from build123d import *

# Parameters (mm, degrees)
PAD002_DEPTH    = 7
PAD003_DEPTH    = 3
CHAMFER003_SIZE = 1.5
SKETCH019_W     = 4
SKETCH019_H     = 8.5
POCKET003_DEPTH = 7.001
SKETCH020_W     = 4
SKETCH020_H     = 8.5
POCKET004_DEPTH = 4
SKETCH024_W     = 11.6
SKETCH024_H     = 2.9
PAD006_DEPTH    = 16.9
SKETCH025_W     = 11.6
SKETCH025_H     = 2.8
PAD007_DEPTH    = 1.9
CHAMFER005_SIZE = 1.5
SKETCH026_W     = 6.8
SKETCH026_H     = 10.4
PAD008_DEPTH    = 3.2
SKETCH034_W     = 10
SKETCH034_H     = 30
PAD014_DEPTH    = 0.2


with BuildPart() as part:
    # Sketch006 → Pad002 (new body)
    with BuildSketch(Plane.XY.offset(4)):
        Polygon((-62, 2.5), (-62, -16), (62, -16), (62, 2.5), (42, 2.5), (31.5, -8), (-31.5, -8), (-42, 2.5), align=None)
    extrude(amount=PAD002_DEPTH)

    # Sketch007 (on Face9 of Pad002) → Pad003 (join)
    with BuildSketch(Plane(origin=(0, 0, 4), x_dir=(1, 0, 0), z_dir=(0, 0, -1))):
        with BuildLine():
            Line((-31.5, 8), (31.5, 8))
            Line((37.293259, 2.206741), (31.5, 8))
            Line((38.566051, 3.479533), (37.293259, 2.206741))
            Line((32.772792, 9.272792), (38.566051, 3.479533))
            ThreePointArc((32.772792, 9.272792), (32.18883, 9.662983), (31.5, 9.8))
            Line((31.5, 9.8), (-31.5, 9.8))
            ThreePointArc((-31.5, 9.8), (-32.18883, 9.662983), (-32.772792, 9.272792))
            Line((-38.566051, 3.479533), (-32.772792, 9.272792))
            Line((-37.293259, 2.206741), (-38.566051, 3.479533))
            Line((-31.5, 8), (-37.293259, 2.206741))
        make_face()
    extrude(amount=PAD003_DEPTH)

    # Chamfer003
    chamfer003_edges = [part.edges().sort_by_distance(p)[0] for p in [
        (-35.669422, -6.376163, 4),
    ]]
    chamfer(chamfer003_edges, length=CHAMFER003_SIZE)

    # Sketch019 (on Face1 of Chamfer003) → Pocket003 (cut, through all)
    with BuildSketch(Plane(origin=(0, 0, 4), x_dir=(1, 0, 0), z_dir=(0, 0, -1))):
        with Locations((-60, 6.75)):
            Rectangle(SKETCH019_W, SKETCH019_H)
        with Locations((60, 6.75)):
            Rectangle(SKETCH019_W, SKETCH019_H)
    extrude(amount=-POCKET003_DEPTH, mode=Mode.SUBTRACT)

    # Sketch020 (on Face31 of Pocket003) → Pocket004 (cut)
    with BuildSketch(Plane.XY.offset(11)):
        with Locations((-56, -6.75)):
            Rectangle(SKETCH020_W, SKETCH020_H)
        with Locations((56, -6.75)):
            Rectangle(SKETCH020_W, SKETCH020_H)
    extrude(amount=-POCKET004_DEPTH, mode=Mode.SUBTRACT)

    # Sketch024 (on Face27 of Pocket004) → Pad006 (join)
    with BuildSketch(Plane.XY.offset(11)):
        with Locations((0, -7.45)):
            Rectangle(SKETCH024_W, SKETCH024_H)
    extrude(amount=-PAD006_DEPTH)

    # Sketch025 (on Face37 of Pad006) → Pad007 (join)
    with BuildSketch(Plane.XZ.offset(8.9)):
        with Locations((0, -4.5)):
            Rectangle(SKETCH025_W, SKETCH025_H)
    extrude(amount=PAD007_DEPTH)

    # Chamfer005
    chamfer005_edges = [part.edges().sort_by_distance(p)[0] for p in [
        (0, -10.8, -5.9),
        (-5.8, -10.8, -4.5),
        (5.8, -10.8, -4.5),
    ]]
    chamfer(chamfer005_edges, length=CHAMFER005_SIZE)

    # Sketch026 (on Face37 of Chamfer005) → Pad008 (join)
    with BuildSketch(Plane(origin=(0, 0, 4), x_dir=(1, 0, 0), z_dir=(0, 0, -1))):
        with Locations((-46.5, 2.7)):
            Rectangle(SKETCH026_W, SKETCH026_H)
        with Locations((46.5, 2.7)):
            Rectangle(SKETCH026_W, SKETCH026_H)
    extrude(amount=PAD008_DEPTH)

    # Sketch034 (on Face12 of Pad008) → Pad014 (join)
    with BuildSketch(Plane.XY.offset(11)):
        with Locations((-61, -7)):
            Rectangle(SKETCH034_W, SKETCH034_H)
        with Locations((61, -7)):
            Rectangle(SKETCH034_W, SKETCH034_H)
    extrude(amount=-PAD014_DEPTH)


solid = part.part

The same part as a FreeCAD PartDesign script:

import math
import FreeCAD as App
import Part
import Sketcher


def edges_at(feature, points):
    """Names of the edges that pass closest to the given points."""
    edges = feature.Shape.Edges
    near = lambda p: min(range(len(edges)), key=lambda i: edges[i].distToShape(Part.Vertex(*p))[0])
    return sorted({f"Edge{near(p) + 1}" for p in points})

doc = App.newDocument("Part")
body = doc.addObject("PartDesign::Body", "Body")

sketch1 = body.newObject("Sketcher::SketchObject", "Sketch")
sketch1.AttachmentSupport = (doc.getObject("XY_Plane"), [""])
sketch1.MapMode = "FlatFace"
sketch1.AttachmentOffset = App.Placement(App.Vector(0, 0, 4), App.Rotation())
sketch1.addGeometry([
    Part.LineSegment(App.Vector(-62, 2.5, 0), App.Vector(-62, -16, 0)),
    Part.LineSegment(App.Vector(-62, -16, 0), App.Vector(62, -16, 0)),
    Part.LineSegment(App.Vector(62, -16, 0), App.Vector(62, 2.5, 0)),
    Part.LineSegment(App.Vector(62, 2.5, 0), App.Vector(42, 2.5, 0)),
    Part.LineSegment(App.Vector(42, 2.5, 0), App.Vector(31.5, -8, 0)),
    Part.LineSegment(App.Vector(31.5, -8, 0), App.Vector(-31.5, -8, 0)),
    Part.LineSegment(App.Vector(-31.5, -8, 0), App.Vector(-42, 2.5, 0)),
    Part.LineSegment(App.Vector(-42, 2.5, 0), App.Vector(-62, 2.5, 0)),
], False)
sketch1.addConstraint([
    Sketcher.Constraint("Coincident", 0, 2, 1, 1),
    Sketcher.Constraint("Coincident", 1, 2, 2, 1),
    Sketcher.Constraint("Coincident", 2, 2, 3, 1),
    Sketcher.Constraint("Coincident", 3, 2, 4, 1),
    Sketcher.Constraint("Coincident", 4, 2, 5, 1),
    Sketcher.Constraint("Coincident", 5, 2, 6, 1),
    Sketcher.Constraint("Coincident", 6, 2, 7, 1),
    Sketcher.Constraint("Coincident", 7, 2, 0, 1),
    Sketcher.Constraint("Vertical", 0),
    Sketcher.Constraint("Horizontal", 1),
    Sketcher.Constraint("Vertical", 2),
    Sketcher.Constraint("Horizontal", 3),
    Sketcher.Constraint("Horizontal", 5),
    Sketcher.Constraint("Horizontal", 7),
    Sketcher.Constraint("Symmetric", 3, 2, 6, 2, -2),
    Sketcher.Constraint("Perpendicular", 4, 6),
    Sketcher.Constraint("Equal", 3, 7),
    Sketcher.Constraint("Equal", 4, 6),
    Sketcher.Constraint("DistanceX", 1, 1, 1, 2, 124.0),
    Sketcher.Constraint("DistanceX", 3, 2, 3, 1, 20.0),
    Sketcher.Constraint("DistanceX", 5, 2, 5, 1, 63.0),
    Sketcher.Constraint("DistanceY", 0, 2, 0, 1, 18.5),
    Sketcher.Constraint("DistanceY", 0, 2, -1, 1, 16.0),
])
pad1 = body.newObject("PartDesign::Pad", "Pad")
pad1.Profile = sketch1
pad1.Length = 7

sketch2 = body.newObject("Sketcher::SketchObject", "Sketch001")
sketch2.AttachmentSupport = (doc.getObject("XY_Plane"), [""])
sketch2.MapMode = "FlatFace"
sketch2.AttachmentOffset = App.Placement(App.Vector(0, 0, 4), App.Rotation())
sketch2.addGeometry([
    Part.LineSegment(App.Vector(-31.5, -8, 0), App.Vector(31.5, -8, 0)),
    Part.LineSegment(App.Vector(31.5, -8, 0), App.Vector(37.293259, -2.206741, 0)),
    Part.LineSegment(App.Vector(37.293259, -2.206741, 0), App.Vector(38.566051, -3.479533, 0)),
    Part.LineSegment(App.Vector(38.566051, -3.479533, 0), App.Vector(32.772792, -9.272792, 0)),
    Part.ArcOfCircle(Part.Circle(App.Vector(31.499999, -7.999999, 0), App.Vector(0, 0, 1), 1.800001), math.radians(-89.999978), math.radians(-45)),
    Part.LineSegment(App.Vector(31.5, -9.8, 0), App.Vector(-31.5, -9.8, 0)),
    Part.ArcOfCircle(Part.Circle(App.Vector(-31.499999, -7.999999, 0), App.Vector(0, 0, 1), 1.800001), math.radians(-135), math.radians(-90.000022)),
    Part.LineSegment(App.Vector(-32.772792, -9.272792, 0), App.Vector(-38.566051, -3.479533, 0)),
    Part.LineSegment(App.Vector(-38.566051, -3.479533, 0), App.Vector(-37.293259, -2.206741, 0)),
    Part.LineSegment(App.Vector(-37.293259, -2.206741, 0), App.Vector(-31.5, -8, 0)),
], False)
sketch2.addConstraint([
    Sketcher.Constraint("Coincident", 0, 2, 1, 1),
    Sketcher.Constraint("Coincident", 1, 2, 2, 1),
    Sketcher.Constraint("Coincident", 2, 2, 3, 1),
    Sketcher.Constraint("Tangent", 3, 2, 4, 2),
    Sketcher.Constraint("Tangent", 4, 1, 5, 1),
    Sketcher.Constraint("Tangent", 5, 2, 6, 2),
    Sketcher.Constraint("Tangent", 6, 1, 7, 1),
    Sketcher.Constraint("Coincident", 7, 2, 8, 1),
    Sketcher.Constraint("Coincident", 8, 2, 9, 1),
    Sketcher.Constraint("Coincident", 9, 2, 0, 1),
    Sketcher.Constraint("Horizontal", 0),
    Sketcher.Constraint("Horizontal", 5),
    Sketcher.Constraint("Coincident", 0, 2, 4, 3),
    Sketcher.Constraint("Coincident", 9, 2, 6, 3),
    Sketcher.Constraint("Symmetric", 3, 2, 6, 1, -2),
    Sketcher.Constraint("Symmetric", 1, 2, 8, 2, -2),
    Sketcher.Constraint("Perpendicular", 1, 2),
    Sketcher.Constraint("Perpendicular", 2, 3),
    Sketcher.Constraint("Perpendicular", 3, 7),
    Sketcher.Constraint("Perpendicular", 7, 8),
    Sketcher.Constraint("Radius", 4, 1.800001),
    Sketcher.Constraint("DistanceX", 0, 1, 0, 2, 63.0),
    Sketcher.Constraint("DistanceY", 4, 3, -1, 1, 7.999999),
    Sketcher.Constraint("DistanceX", -1, 1, 1, 2, 37.293259),
])
pad2 = body.newObject("PartDesign::Pad", "Pad001")
pad2.Profile = sketch2
pad2.Length = 3
pad2.Reversed = True
doc.recompute()

chamfer = body.newObject("PartDesign::Chamfer", "Chamfer")
chamfer.Base = (pad2, edges_at(pad2, [(-35.669, -6.376, 4)]))
chamfer.Size = 1.5

sketch3 = body.newObject("Sketcher::SketchObject", "Sketch002")
sketch3.AttachmentSupport = (doc.getObject("XY_Plane"), [""])
sketch3.MapMode = "FlatFace"
sketch3.AttachmentOffset = App.Placement(App.Vector(0, 0, 4), App.Rotation())
sketch3.addGeometry([
    Part.LineSegment(App.Vector(-62, -11, 0), App.Vector(-62, -2.5, 0)),
    Part.LineSegment(App.Vector(-62, -2.5, 0), App.Vector(-58, -2.5, 0)),
    Part.LineSegment(App.Vector(-58, -2.5, 0), App.Vector(-58, -11, 0)),
    Part.LineSegment(App.Vector(-58, -11, 0), App.Vector(-62, -11, 0)),
    Part.LineSegment(App.Vector(58, -11, 0), App.Vector(58, -2.5, 0)),
    Part.LineSegment(App.Vector(58, -2.5, 0), App.Vector(62, -2.5, 0)),
    Part.LineSegment(App.Vector(62, -2.5, 0), App.Vector(62, -11, 0)),
    Part.LineSegment(App.Vector(62, -11, 0), App.Vector(58, -11, 0)),
], False)
sketch3.addConstraint([
    Sketcher.Constraint("Coincident", 0, 2, 1, 1),
    Sketcher.Constraint("Coincident", 1, 2, 2, 1),
    Sketcher.Constraint("Coincident", 2, 2, 3, 1),
    Sketcher.Constraint("Coincident", 3, 2, 0, 1),
    Sketcher.Constraint("Coincident", 4, 2, 5, 1),
    Sketcher.Constraint("Coincident", 5, 2, 6, 1),
    Sketcher.Constraint("Coincident", 6, 2, 7, 1),
    Sketcher.Constraint("Coincident", 7, 2, 4, 1),
    Sketcher.Constraint("Vertical", 0),
    Sketcher.Constraint("Horizontal", 1),
    Sketcher.Constraint("Vertical", 2),
    Sketcher.Constraint("Horizontal", 3),
    Sketcher.Constraint("Vertical", 4),
    Sketcher.Constraint("Horizontal", 5),
    Sketcher.Constraint("Vertical", 6),
    Sketcher.Constraint("Horizontal", 7),
    Sketcher.Constraint("Symmetric", 1, 2, 4, 2, -2),
    Sketcher.Constraint("Symmetric", 3, 2, 6, 2, -2),
    Sketcher.Constraint("DistanceX", 1, 1, 1, 2, 4.0),
    Sketcher.Constraint("DistanceY", 0, 1, 0, 2, 8.5),
    Sketcher.Constraint("DistanceX", 0, 2, -1, 1, 62.0),
    Sketcher.Constraint("DistanceY", 2, 2, -1, 1, 11.0),
])
pocket1 = body.newObject("PartDesign::Pocket", "Pocket")
pocket1.Profile = sketch3
pocket1.Type = "ThroughAll"
pocket1.Reversed = True

sketch4 = body.newObject("Sketcher::SketchObject", "Sketch003")
sketch4.AttachmentSupport = (doc.getObject("XY_Plane"), [""])
sketch4.MapMode = "FlatFace"
sketch4.AttachmentOffset = App.Placement(App.Vector(0, 0, 11), App.Rotation())
sketch4.addGeometry([
    Part.LineSegment(App.Vector(-58, -2.5, 0), App.Vector(-58, -11, 0)),
    Part.LineSegment(App.Vector(-58, -11, 0), App.Vector(-54, -11, 0)),
    Part.LineSegment(App.Vector(-54, -11, 0), App.Vector(-54, -2.5, 0)),
    Part.LineSegment(App.Vector(-54, -2.5, 0), App.Vector(-58, -2.5, 0)),
    Part.LineSegment(App.Vector(54, -2.5, 0), App.Vector(54, -11, 0)),
    Part.LineSegment(App.Vector(54, -11, 0), App.Vector(58, -11, 0)),
    Part.LineSegment(App.Vector(58, -11, 0), App.Vector(58, -2.5, 0)),
    Part.LineSegment(App.Vector(58, -2.5, 0), App.Vector(54, -2.5, 0)),
], False)
sketch4.addConstraint([
    Sketcher.Constraint("Coincident", 0, 2, 1, 1),
    Sketcher.Constraint("Coincident", 1, 2, 2, 1),
    Sketcher.Constraint("Coincident", 2, 2, 3, 1),
    Sketcher.Constraint("Coincident", 3, 2, 0, 1),
    Sketcher.Constraint("Coincident", 4, 2, 5, 1),
    Sketcher.Constraint("Coincident", 5, 2, 6, 1),
    Sketcher.Constraint("Coincident", 6, 2, 7, 1),
    Sketcher.Constraint("Coincident", 7, 2, 4, 1),
    Sketcher.Constraint("Vertical", 0),
    Sketcher.Constraint("Horizontal", 1),
    Sketcher.Constraint("Vertical", 2),
    Sketcher.Constraint("Horizontal", 3),
    Sketcher.Constraint("Vertical", 4),
    Sketcher.Constraint("Horizontal", 5),
    Sketcher.Constraint("Vertical", 6),
    Sketcher.Constraint("Horizontal", 7),
    Sketcher.Constraint("Symmetric", 1, 2, 4, 2, -2),
    Sketcher.Constraint("Symmetric", 3, 2, 6, 2, -2),
    Sketcher.Constraint("DistanceX", 1, 1, 1, 2, 4.0),
    Sketcher.Constraint("DistanceY", 0, 2, 0, 1, 8.5),
    Sketcher.Constraint("DistanceX", 0, 2, -1, 1, 58.0),
    Sketcher.Constraint("DistanceY", 0, 2, -1, 1, 11.0),
])
pocket2 = body.newObject("PartDesign::Pocket", "Pocket001")
pocket2.Profile = sketch4
pocket2.Length = 4

sketch5 = body.newObject("Sketcher::SketchObject", "Sketch004")
sketch5.AttachmentSupport = (doc.getObject("XY_Plane"), [""])
sketch5.MapMode = "FlatFace"
sketch5.AttachmentOffset = App.Placement(App.Vector(0, 0, 11), App.Rotation())
sketch5.addGeometry([
    Part.LineSegment(App.Vector(-5.8, -6, 0), App.Vector(-5.8, -8.9, 0)),
    Part.LineSegment(App.Vector(-5.8, -8.9, 0), App.Vector(5.8, -8.9, 0)),
    Part.LineSegment(App.Vector(5.8, -8.9, 0), App.Vector(5.8, -6, 0)),
    Part.LineSegment(App.Vector(5.8, -6, 0), App.Vector(-5.8, -6, 0)),
], False)
sketch5.addConstraint([
    Sketcher.Constraint("Coincident", 0, 2, 1, 1),
    Sketcher.Constraint("Coincident", 1, 2, 2, 1),
    Sketcher.Constraint("Coincident", 2, 2, 3, 1),
    Sketcher.Constraint("Coincident", 3, 2, 0, 1),
    Sketcher.Constraint("Vertical", 0),
    Sketcher.Constraint("Horizontal", 1),
    Sketcher.Constraint("Vertical", 2),
    Sketcher.Constraint("Horizontal", 3),
    Sketcher.Constraint("DistanceX", 1, 1, 1, 2, 11.6),
    Sketcher.Constraint("DistanceY", 0, 2, 0, 1, 2.9),
    Sketcher.Constraint("DistanceY", 2, 2, -1, 1, 6.0),
    Sketcher.Constraint("DistanceX", 0, 2, -1, 1, 5.8),
])
pad3 = body.newObject("PartDesign::Pad", "Pad002")
pad3.Profile = sketch5
pad3.Length = 16.9
pad3.Reversed = True

sketch6 = body.newObject("Sketcher::SketchObject", "Sketch005")
sketch6.AttachmentSupport = (doc.getObject("XZ_Plane"), [""])
sketch6.MapMode = "FlatFace"
sketch6.AttachmentOffset = App.Placement(App.Vector(0, 0, 8.9), App.Rotation())
sketch6.addGeometry([
    Part.LineSegment(App.Vector(-5.8, -3.1, 0), App.Vector(-5.8, -5.9, 0)),
    Part.LineSegment(App.Vector(-5.8, -5.9, 0), App.Vector(5.8, -5.9, 0)),
    Part.LineSegment(App.Vector(5.8, -5.9, 0), App.Vector(5.8, -3.1, 0)),
    Part.LineSegment(App.Vector(5.8, -3.1, 0), App.Vector(-5.8, -3.1, 0)),
], False)
sketch6.addConstraint([
    Sketcher.Constraint("Coincident", 0, 2, 1, 1),
    Sketcher.Constraint("Coincident", 1, 2, 2, 1),
    Sketcher.Constraint("Coincident", 2, 2, 3, 1),
    Sketcher.Constraint("Coincident", 3, 2, 0, 1),
    Sketcher.Constraint("Vertical", 0),
    Sketcher.Constraint("Horizontal", 1),
    Sketcher.Constraint("Vertical", 2),
    Sketcher.Constraint("Horizontal", 3),
    Sketcher.Constraint("DistanceX", 1, 1, 1, 2, 11.6),
    Sketcher.Constraint("DistanceY", 0, 2, 0, 1, 2.8),
    Sketcher.Constraint("DistanceX", 0, 2, -1, 1, 5.8),
    Sketcher.Constraint("DistanceY", 0, 2, -1, 1, 5.9),
])
pad4 = body.newObject("PartDesign::Pad", "Pad003")
pad4.Profile = sketch6
pad4.Length = 1.9
doc.recompute()

chamfer2 = body.newObject("PartDesign::Chamfer", "Chamfer001")
chamfer2.Base = (pad4, edges_at(pad4, [(0, -10.8, -5.9), (-5.8, -10.8, -4.5), (5.8, -10.8, -4.5)]))
chamfer2.Size = 1.5

sketch7 = body.newObject("Sketcher::SketchObject", "Sketch006")
sketch7.AttachmentSupport = (doc.getObject("XY_Plane"), [""])
sketch7.MapMode = "FlatFace"
sketch7.AttachmentOffset = App.Placement(App.Vector(0, 0, 4), App.Rotation())
sketch7.addGeometry([
    Part.LineSegment(App.Vector(-49.9, -7.9, 0), App.Vector(-49.9, 2.5, 0)),
    Part.LineSegment(App.Vector(-49.9, 2.5, 0), App.Vector(-43.1, 2.5, 0)),
    Part.LineSegment(App.Vector(-43.1, 2.5, 0), App.Vector(-43.1, -7.9, 0)),
    Part.LineSegment(App.Vector(-43.1, -7.9, 0), App.Vector(-49.9, -7.9, 0)),
    Part.LineSegment(App.Vector(43.1, -7.9, 0), App.Vector(43.1, 2.5, 0)),
    Part.LineSegment(App.Vector(43.1, 2.5, 0), App.Vector(49.9, 2.5, 0)),
    Part.LineSegment(App.Vector(49.9, 2.5, 0), App.Vector(49.9, -7.9, 0)),
    Part.LineSegment(App.Vector(49.9, -7.9, 0), App.Vector(43.1, -7.9, 0)),
], False)
sketch7.addConstraint([
    Sketcher.Constraint("Coincident", 0, 2, 1, 1),
    Sketcher.Constraint("Coincident", 1, 2, 2, 1),
    Sketcher.Constraint("Coincident", 2, 2, 3, 1),
    Sketcher.Constraint("Coincident", 3, 2, 0, 1),
    Sketcher.Constraint("Coincident", 4, 2, 5, 1),
    Sketcher.Constraint("Coincident", 5, 2, 6, 1),
    Sketcher.Constraint("Coincident", 6, 2, 7, 1),
    Sketcher.Constraint("Coincident", 7, 2, 4, 1),
    Sketcher.Constraint("Vertical", 0),
    Sketcher.Constraint("Horizontal", 1),
    Sketcher.Constraint("Vertical", 2),
    Sketcher.Constraint("Horizontal", 3),
    Sketcher.Constraint("Vertical", 4),
    Sketcher.Constraint("Horizontal", 5),
    Sketcher.Constraint("Vertical", 6),
    Sketcher.Constraint("Horizontal", 7),
    Sketcher.Constraint("Symmetric", 1, 2, 4, 2, -2),
    Sketcher.Constraint("Symmetric", 3, 2, 6, 2, -2),
    Sketcher.Constraint("DistanceX", 1, 1, 1, 2, 6.8),
    Sketcher.Constraint("DistanceY", 0, 1, 0, 2, 10.4),
    Sketcher.Constraint("DistanceX", 0, 2, 4, 2, 93.0),
    Sketcher.Constraint("DistanceY", -1, 1, 0, 2, 2.5),
])
pad5 = body.newObject("PartDesign::Pad", "Pad004")
pad5.Profile = sketch7
pad5.Length = 3.2
pad5.Reversed = True

sketch8 = body.newObject("Sketcher::SketchObject", "Sketch007")
sketch8.AttachmentSupport = (doc.getObject("XY_Plane"), [""])
sketch8.MapMode = "FlatFace"
sketch8.AttachmentOffset = App.Placement(App.Vector(0, 0, 11), App.Rotation())
sketch8.addGeometry([
    Part.LineSegment(App.Vector(-66, 8, 0), App.Vector(-66, -22, 0)),
    Part.LineSegment(App.Vector(-66, -22, 0), App.Vector(-56, -22, 0)),
    Part.LineSegment(App.Vector(-56, -22, 0), App.Vector(-56, 8, 0)),
    Part.LineSegment(App.Vector(-56, 8, 0), App.Vector(-66, 8, 0)),
    Part.LineSegment(App.Vector(56, 8, 0), App.Vector(56, -22, 0)),
    Part.LineSegment(App.Vector(56, -22, 0), App.Vector(66, -22, 0)),
    Part.LineSegment(App.Vector(66, -22, 0), App.Vector(66, 8, 0)),
    Part.LineSegment(App.Vector(66, 8, 0), App.Vector(56, 8, 0)),
], False)
sketch8.addConstraint([
    Sketcher.Constraint("Coincident", 0, 2, 1, 1),
    Sketcher.Constraint("Coincident", 1, 2, 2, 1),
    Sketcher.Constraint("Coincident", 2, 2, 3, 1),
    Sketcher.Constraint("Coincident", 3, 2, 0, 1),
    Sketcher.Constraint("Coincident", 4, 2, 5, 1),
    Sketcher.Constraint("Coincident", 5, 2, 6, 1),
    Sketcher.Constraint("Coincident", 6, 2, 7, 1),
    Sketcher.Constraint("Coincident", 7, 2, 4, 1),
    Sketcher.Constraint("Vertical", 0),
    Sketcher.Constraint("Horizontal", 1),
    Sketcher.Constraint("Vertical", 2),
    Sketcher.Constraint("Horizontal", 3),
    Sketcher.Constraint("Vertical", 4),
    Sketcher.Constraint("Horizontal", 5),
    Sketcher.Constraint("Vertical", 6),
    Sketcher.Constraint("Horizontal", 7),
    Sketcher.Constraint("Symmetric", 1, 2, 4, 2, -2),
    Sketcher.Constraint("Symmetric", 3, 2, 6, 2, -2),
    Sketcher.Constraint("DistanceX", 1, 1, 1, 2, 10.0),
    Sketcher.Constraint("DistanceY", 0, 2, 0, 1, 30.0),
    Sketcher.Constraint("DistanceX", 0, 2, -1, 1, 66.0),
    Sketcher.Constraint("DistanceY", 0, 2, -1, 1, 22.0),
])
pad6 = body.newObject("PartDesign::Pad", "Pad005")
pad6.Profile = sketch8
pad6.Length = 0.2
pad6.Reversed = True

doc.recompute()
